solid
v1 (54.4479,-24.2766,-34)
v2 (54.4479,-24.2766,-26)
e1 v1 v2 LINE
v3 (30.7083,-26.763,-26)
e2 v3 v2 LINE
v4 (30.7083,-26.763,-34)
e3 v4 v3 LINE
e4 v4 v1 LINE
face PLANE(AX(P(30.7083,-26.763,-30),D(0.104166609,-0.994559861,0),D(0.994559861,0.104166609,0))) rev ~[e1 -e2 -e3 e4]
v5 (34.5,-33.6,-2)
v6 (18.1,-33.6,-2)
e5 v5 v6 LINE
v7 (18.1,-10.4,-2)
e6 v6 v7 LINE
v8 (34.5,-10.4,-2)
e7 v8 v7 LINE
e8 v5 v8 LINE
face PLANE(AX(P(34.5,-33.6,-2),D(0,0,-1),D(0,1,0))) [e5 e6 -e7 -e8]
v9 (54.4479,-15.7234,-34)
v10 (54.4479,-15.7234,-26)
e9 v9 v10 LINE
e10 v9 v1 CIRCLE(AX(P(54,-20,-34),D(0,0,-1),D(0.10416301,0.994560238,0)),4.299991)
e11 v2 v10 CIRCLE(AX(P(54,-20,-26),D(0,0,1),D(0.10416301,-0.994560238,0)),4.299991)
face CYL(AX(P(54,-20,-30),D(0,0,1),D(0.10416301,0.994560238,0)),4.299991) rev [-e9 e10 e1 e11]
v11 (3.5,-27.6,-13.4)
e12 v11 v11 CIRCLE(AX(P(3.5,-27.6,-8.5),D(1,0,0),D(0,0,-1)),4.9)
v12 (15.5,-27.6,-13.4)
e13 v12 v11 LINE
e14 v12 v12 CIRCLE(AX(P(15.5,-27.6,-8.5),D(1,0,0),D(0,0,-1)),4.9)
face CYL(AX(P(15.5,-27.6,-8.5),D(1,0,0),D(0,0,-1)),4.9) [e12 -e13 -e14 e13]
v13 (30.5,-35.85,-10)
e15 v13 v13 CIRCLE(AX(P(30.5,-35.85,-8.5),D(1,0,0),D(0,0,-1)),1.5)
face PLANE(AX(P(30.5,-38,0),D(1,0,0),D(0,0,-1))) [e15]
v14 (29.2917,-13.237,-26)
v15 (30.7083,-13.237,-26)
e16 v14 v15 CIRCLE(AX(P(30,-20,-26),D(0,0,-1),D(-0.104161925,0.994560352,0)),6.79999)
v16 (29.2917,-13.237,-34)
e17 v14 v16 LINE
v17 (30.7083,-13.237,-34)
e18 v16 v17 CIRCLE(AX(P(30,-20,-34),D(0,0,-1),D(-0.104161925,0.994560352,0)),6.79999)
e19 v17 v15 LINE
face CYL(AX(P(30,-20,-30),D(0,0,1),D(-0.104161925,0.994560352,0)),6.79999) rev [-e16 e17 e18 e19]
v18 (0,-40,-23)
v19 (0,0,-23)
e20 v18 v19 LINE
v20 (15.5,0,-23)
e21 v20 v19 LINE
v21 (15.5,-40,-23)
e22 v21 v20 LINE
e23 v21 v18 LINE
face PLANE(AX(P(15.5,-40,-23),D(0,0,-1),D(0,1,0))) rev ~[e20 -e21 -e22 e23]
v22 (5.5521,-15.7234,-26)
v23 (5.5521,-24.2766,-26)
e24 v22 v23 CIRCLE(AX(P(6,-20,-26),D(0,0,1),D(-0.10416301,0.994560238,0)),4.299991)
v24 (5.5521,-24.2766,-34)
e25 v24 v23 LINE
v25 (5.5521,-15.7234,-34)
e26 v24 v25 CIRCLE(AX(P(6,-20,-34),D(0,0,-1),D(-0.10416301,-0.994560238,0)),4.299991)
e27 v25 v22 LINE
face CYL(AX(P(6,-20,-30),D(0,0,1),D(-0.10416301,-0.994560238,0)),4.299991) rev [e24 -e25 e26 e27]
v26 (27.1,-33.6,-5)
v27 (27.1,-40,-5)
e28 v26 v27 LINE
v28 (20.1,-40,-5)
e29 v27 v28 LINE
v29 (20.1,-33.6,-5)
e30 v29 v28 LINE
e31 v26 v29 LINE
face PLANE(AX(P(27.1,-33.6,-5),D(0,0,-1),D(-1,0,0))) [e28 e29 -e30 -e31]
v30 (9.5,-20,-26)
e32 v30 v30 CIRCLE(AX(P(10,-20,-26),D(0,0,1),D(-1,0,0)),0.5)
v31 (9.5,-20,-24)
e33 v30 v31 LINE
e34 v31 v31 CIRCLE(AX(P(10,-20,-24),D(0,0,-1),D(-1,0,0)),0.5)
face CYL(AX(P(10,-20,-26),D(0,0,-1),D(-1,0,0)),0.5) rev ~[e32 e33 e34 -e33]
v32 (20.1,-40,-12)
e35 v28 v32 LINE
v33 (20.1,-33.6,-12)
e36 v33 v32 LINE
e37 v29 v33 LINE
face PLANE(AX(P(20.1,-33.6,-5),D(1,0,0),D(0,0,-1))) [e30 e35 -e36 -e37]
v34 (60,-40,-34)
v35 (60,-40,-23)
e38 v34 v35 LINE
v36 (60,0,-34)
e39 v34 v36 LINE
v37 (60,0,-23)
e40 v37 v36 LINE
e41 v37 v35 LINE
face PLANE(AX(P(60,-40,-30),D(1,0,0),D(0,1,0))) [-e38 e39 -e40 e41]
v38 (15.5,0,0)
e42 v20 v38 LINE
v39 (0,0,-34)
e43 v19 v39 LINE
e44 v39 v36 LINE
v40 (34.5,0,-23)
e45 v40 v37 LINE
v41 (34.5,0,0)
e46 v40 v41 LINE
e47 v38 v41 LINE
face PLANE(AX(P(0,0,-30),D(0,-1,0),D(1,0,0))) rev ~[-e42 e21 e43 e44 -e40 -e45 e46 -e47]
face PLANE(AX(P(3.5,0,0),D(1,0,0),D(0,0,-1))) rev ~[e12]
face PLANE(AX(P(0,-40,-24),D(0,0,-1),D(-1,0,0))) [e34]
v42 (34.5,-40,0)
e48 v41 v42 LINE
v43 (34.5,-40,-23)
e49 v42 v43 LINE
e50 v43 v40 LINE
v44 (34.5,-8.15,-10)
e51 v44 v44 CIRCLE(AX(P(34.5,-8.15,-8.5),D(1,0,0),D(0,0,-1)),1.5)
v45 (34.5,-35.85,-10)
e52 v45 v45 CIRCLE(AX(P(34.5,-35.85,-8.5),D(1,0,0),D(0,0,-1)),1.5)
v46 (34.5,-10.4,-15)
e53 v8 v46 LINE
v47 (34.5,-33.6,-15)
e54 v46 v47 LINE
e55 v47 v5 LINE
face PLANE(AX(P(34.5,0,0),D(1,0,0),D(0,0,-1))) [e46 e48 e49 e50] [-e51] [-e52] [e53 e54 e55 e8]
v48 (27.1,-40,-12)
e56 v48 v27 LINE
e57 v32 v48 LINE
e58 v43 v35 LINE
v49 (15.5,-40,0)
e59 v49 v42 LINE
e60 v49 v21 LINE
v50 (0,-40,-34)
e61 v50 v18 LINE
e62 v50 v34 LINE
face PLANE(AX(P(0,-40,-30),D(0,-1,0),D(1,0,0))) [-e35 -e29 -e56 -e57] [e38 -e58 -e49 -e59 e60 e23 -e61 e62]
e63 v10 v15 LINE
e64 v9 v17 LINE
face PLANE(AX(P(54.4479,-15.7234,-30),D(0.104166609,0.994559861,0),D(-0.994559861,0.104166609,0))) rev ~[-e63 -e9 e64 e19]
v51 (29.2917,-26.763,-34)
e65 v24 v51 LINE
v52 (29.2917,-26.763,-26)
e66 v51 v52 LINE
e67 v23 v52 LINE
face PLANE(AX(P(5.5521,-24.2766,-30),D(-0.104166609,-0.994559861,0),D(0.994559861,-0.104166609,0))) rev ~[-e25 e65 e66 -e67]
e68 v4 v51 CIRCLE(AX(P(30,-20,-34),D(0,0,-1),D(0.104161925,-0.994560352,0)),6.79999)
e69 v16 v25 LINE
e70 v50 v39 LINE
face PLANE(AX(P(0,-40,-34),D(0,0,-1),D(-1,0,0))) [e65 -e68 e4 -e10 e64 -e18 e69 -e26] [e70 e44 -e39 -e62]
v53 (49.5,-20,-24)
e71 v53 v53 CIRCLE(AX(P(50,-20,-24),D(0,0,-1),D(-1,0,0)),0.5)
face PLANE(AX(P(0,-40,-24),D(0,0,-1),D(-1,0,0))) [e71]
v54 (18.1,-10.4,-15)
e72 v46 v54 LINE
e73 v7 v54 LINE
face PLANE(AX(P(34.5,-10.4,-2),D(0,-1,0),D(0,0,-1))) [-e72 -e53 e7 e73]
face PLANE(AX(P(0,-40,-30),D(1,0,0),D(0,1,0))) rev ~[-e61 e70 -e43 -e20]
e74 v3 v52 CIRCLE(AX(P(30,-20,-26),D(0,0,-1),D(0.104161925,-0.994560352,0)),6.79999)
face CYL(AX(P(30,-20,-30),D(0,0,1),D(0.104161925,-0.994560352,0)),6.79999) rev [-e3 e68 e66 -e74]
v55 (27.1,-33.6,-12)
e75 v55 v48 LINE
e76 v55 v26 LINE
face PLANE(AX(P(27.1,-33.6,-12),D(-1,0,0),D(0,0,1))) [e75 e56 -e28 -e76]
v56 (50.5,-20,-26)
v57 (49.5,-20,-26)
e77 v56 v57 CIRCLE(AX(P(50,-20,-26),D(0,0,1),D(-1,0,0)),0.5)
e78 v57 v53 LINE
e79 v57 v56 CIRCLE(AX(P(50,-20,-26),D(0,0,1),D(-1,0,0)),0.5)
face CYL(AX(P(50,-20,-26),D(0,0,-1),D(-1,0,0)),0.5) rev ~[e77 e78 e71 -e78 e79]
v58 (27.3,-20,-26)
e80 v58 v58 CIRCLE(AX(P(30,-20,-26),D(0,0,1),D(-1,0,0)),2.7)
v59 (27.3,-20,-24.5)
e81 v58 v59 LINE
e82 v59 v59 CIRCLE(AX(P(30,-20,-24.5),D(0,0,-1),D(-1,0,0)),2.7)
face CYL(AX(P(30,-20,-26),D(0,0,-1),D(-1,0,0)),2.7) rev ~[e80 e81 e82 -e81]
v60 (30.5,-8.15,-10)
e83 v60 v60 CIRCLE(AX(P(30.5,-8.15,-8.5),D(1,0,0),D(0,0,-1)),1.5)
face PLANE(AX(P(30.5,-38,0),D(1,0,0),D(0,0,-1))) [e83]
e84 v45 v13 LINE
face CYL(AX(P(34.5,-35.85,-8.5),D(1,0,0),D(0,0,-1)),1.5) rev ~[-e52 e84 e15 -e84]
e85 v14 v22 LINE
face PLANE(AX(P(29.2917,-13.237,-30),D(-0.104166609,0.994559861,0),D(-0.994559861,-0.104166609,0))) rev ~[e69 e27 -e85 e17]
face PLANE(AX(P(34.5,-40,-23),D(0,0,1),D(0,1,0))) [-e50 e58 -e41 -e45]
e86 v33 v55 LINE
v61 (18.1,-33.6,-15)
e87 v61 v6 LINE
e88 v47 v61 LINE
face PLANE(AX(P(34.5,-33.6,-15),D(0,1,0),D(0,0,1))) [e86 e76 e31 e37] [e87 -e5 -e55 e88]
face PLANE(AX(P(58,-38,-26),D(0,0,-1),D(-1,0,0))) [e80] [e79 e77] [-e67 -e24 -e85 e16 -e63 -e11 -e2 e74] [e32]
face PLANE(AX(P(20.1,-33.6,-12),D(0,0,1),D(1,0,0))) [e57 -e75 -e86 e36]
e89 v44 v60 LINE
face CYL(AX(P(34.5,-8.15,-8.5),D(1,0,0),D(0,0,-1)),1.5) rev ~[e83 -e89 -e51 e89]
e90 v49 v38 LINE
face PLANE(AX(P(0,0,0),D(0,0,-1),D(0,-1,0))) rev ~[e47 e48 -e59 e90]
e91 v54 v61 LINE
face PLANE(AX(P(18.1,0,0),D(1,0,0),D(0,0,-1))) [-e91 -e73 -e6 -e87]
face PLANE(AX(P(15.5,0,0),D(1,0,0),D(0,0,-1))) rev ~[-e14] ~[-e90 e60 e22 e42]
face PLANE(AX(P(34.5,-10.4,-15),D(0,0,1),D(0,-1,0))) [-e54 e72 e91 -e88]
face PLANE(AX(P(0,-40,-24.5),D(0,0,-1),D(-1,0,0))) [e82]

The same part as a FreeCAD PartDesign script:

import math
import FreeCAD as App
import Part
import Sketcher
from FreeCAD import Vector

doc = App.newDocument("Part")
params = doc.addObject("Spreadsheet::Sheet", "Params")
for row, (alias, value) in enumerate([
    ("sketch1_width", "40 mm"),
    ("sketch1_height", "30 mm"),
    ("pad1_length", "60 mm"),
    ("sketch2_height", "13 mm"),
    ("sketch2_width", "23.2 mm"),
    ("pocket1_length", "16.4 mm"),
    ("sketch3_radius", "4 mm"),
    ("sketch3_radius2", "6.5 mm"),
    ("pocket2_length", "4 mm"),
    ("sketch4_width", "40 mm"),
    ("sketch4_height", "23 mm"),
    ("pocket3_length", "30 mm"),
    ("sketch5_width", "40 mm"),
    ("sketch5_height", "23 mm"),
    ("pocket4_length", "30 mm"),
    ("sketch6_height", "13 mm"),
    ("sketch6_width", "23.2 mm"),
    ("pocket5_length", "16.4 mm"),
    ("sketch7_diameter", "9.8 mm"),
    ("pad2_length", "12 mm"),
    ("sketch8_width", "7 mm"),
    ("pocket6_length", "10 mm"),
    ("sketch9_diameter", "5.4 mm"),
    ("pocket7_length", "1.5 mm"),
    ("sketch10_radius", "4 mm"),
    ("sketch10_radius2", "4.3 mm"),
    ("sketch10_radius3", "6.8 mm"),
    ("pocket8_length", "4 mm"),
    ("sketch11_diameter", "1 mm"),
    ("pocket9_length", "2 mm"),
    ("sketch12_diameter", "3 mm"),
    ("pocket10_length", "4 mm"),
    ("sketch13_radius", "6.8 mm"),
    ("sketch13_radius2", "4.3 mm"),
    ("sketch13_width", "60 mm"),
    ("sketch13_height", "40 mm"),
    ("pad3_length", "4 mm"),
], start=1):
    params.set(f"A{row}", alias)
    params.set(f"B{row}", "=" + value)
    params.setAlias(f"B{row}", alias)

body = doc.addObject("PartDesign::Body", "Body")

# Sketch on YZ plane
sketch1 = body.newObject("Sketcher::SketchObject", "Sketch")
sketch1.AttachmentSupport = (doc.getObject("YZ_Plane"), [""])
sketch1.MapMode = "FlatFace"
sketch1.addGeometry(Part.LineSegment(Vector(0, -30, 0), Vector(0, 0, 0)), False)
sketch1.addGeometry(Part.LineSegment(Vector(0, 0, 0), Vector(-40, 0, 0)), False)
sketch1.addGeometry(Part.LineSegment(Vector(-40, 0, 0), Vector(-40, -30, 0)), False)
sketch1.addGeometry(Part.LineSegment(Vector(-40, -30, 0), Vector(0, -30, 0)), False)
sketch1.addConstraint(Sketcher.Constraint("Coincident", 0, 2, 1, 1))
sketch1.addConstraint(Sketcher.Constraint("Coincident", 1, 2, 2, 1))
sketch1.addConstraint(Sketcher.Constraint("Coincident", 2, 2, 3, 1))
sketch1.addConstraint(Sketcher.Constraint("Coincident", 3, 2, 0, 1))
sketch1.addConstraint(Sketcher.Constraint("Vertical", 0))
sketch1.addConstraint(Sketcher.Constraint("Horizontal", 1))
sketch1.addConstraint(Sketcher.Constraint("Vertical", 2))
sketch1.addConstraint(Sketcher.Constraint("Horizontal", 3))
sketch1.addConstraint(Sketcher.Constraint("Coincident", 0, 2, -1, 1))
sketch1.addConstraint(Sketcher.Constraint("DistanceX", 1, 2, 1, 1, 40.0))
sketch1.addConstraint(Sketcher.Constraint("DistanceY", 0, 1, 0, 2, 30.0))
sketch1.setExpression("Constraints[9]", "Params.sketch1_width")
sketch1.setExpression("Constraints[10]", "Params.sketch1_height")
pad1 = body.newObject("PartDesign::Pad", "Pad")
pad1.Profile = sketch1
pad1.setExpression("Length", "Params.pad1_length")

# Sketch on YZ plane
sketch2 = body.newObject("Sketcher::SketchObject", "Sketch001")
sketch2.AttachmentSupport = (doc.getObject("YZ_Plane"), [""])
sketch2.MapMode = "FlatFace"
sketch2.AttachmentOffset = App.Placement(Vector(0, 0, 60), App.Rotation())
sketch2.addGeometry(Part.LineSegment(Vector(-10, -15, 0), Vector(-10, -2, 0)), False)
sketch2.addGeometry(Part.LineSegment(Vector(-10, -2, 0), Vector(-34, -2, 0)), False)
sketch2.addGeometry(Part.LineSegment(Vector(-34, -2, 0), Vector(-34, -15, 0)), False)
sketch2.addGeometry(Part.LineSegment(Vector(-34, -15, 0), Vector(-10, -15, 0)), False)
sketch2.addConstraint(Sketcher.Constraint("Coincident", 0, 2, 1, 1))
sketch2.addConstraint(Sketcher.Constraint("Coincident", 1, 2, 2, 1))
sketch2.addConstraint(Sketcher.Constraint("Coincident", 2, 2, 3, 1))
sketch2.addConstraint(Sketcher.Constraint("Coincident", 3, 2, 0, 1))
sketch2.addConstraint(Sketcher.Constraint("Vertical", 0))
sketch2.addConstraint(Sketcher.Constraint("Horizontal", 1))
sketch2.addConstraint(Sketcher.Constraint("Vertical", 2))
sketch2.addConstraint(Sketcher.Constraint("Horizontal", 3))
sketch2.addConstraint(Sketcher.Constraint("DistanceY", 0, 1, 0, 2, 13.0))
sketch2.addConstraint(Sketcher.Constraint("DistanceX", 1, 2, 1, 1, 23.2))
sketch2.addConstraint(Sketcher.Constraint("DistanceY", 0, 2, -1, 1, 2.0))
sketch2.addConstraint(Sketcher.Constraint("DistanceX", 0, 2, -1, 1, 10.4))
sketch2.setExpression("Constraints[8]", "Params.sketch2_height")
sketch2.setExpression("Constraints[9]", "Params.sketch2_width")
pocket1 = body.newObject("PartDesign::Pocket", "Pocket")
pocket1.Profile = sketch2
pocket1.setExpression("Length", "Params.pocket1_length")

# Sketch on XY plane
sketch3 = body.newObject("Sketcher::SketchObject", "Sketch002")
sketch3.AttachmentSupport = (doc.getObject("XY_Plane"), [""])
sketch3.MapMode = "FlatFace"
sketch3.AttachmentOffset = App.Placement(Vector(0, 0, -30), App.Rotation())
sketch3.addGeometry(Part.LineSegment(Vector(5.6, -16, 0), Vector(29.3, -13.5, 0)), False)
sketch3.addGeometry(Part.ArcOfCircle(Part.Circle(Vector(30, -20, 0), Vector(0, 0, 1), 6.5), math.radians(84.02), math.radians(95.98)), False)
sketch3.addGeometry(Part.LineSegment(Vector(30.7, -13.5, 0), Vector(54.4, -16, 0)), False)
sketch3.addGeometry(Part.ArcOfCircle(Part.Circle(Vector(54, -20, 0), Vector(0, 0, 1), 4), math.radians(-84), math.radians(84)), False)
sketch3.addGeometry(Part.LineSegment(Vector(54.4, -24, 0), Vector(30.7, -26.5, 0)), False)
sketch3.addGeometry(Part.ArcOfCircle(Part.Circle(Vector(30, -20, 0), Vector(0, 0, 1), 6.5), math.radians(-95.98), math.radians(-84.02)), False)
sketch3.addGeometry(Part.LineSegment(Vector(29.3, -26.5, 0), Vector(5.6, -24, 0)), False)
sketch3.addGeometry(Part.ArcOfCircle(Part.Circle(Vector(6, -20, 0), Vector(0, 0, 1), 4), math.radians(96), math.radians(264)), False)
sketch3.addConstraint(Sketcher.Constraint("Tangent", 0, 2, 1, 2))
sketch3.addConstraint(Sketcher.Constraint("Tangent", 1, 1, 2, 1))
sketch3.addConstraint(Sketcher.Constraint("Tangent", 2, 2, 3, 2))
sketch3.addConstraint(Sketcher.Constraint("Tangent", 3, 1, 4, 1))
sketch3.addConstraint(Sketcher.Constraint("Tangent", 4, 2, 5, 2))
sketch3.addConstraint(Sketcher.Constraint("Tangent", 5, 1, 6, 1))
sketch3.addConstraint(Sketcher.Constraint("Tangent", 6, 2, 7, 2))
sketch3.addConstraint(Sketcher.Constraint("Tangent", 7, 1, 0, 1))
sketch3.addConstraint(Sketcher.Constraint("Coincident", 5, 3, 1, 3))
sketch3.addConstraint(Sketcher.Constraint("Equal", 1, 5))
sketch3.addConstraint(Sketcher.Constraint("Equal", 3, 7))
sketch3.addConstraint(Sketcher.Constraint("Parallel", 0, 4))
sketch3.addConstraint(Sketcher.Constraint("Parallel", 2, 6))
sketch3.addConstraint(Sketcher.Constraint("Horizontal", 1, 3, 3, 3))
sketch3.addConstraint(Sketcher.Constraint("Radius", 3, 4.0))
sketch3.addConstraint(Sketcher.Constraint("Radius", 1, 6.5))
sketch3.addConstraint(Sketcher.Constraint("DistanceX", -1, 1, 1, 3, 30.0))
sketch3.addConstraint(Sketcher.Constraint("DistanceY", 1, 3, -1, 1, 20.0))
sketch3.addConstraint(Sketcher.Constraint("DistanceX", 1, 3, 3, 3, 24.0))
sketch3.setExpression("Constraints[14]", "Params.sketch3_radius")
sketch3.setExpression("Constraints[15]", "Params.sketch3_radius2")
pocket2 = body.newObject("PartDesign::Pocket", "Pocket001")
pocket2.Profile = sketch3
pocket2.setExpression("Length", "Params.pocket2_length")
pocket2.Reversed = True

# Sketch on YZ plane
sketch4 = body.newObject("Sketcher::SketchObject", "Sketch003")
sketch4.AttachmentSupport = (doc.getObject("YZ_Plane"), [""])
sketch4.MapMode = "FlatFace"
sketch4.AttachmentOffset = App.Placement(Vector(0, 0, 34.5), App.Rotation())
sketch4.addGeometry(Part.LineSegment(Vector(0, -23, 0), Vector(0, 0, 0)), False)
sketch4.addGeometry(Part.LineSegment(Vector(0, 0, 0), Vector(-40, 0, 0)), False)
sketch4.addGeometry(Part.LineSegment(Vector(-40, 0, 0), Vector(-40, -23, 0)), False)
sketch4.addGeometry(Part.LineSegment(Vector(-40, -23, 0), Vector(0, -23, 0)), False)
sketch4.addConstraint(Sketcher.Constraint("Coincident", 0, 2, 1, 1))
sketch4.addConstraint(Sketcher.Constraint("Coincident", 1, 2, 2, 1))
sketch4.addConstraint(Sketcher.Constraint("Coincident", 2, 2, 3, 1))
sketch4.addConstraint(Sketcher.Constraint("Coincident", 3, 2, 0, 1))
sketch4.addConstraint(Sketcher.Constraint("Vertical", 0))
sketch4.addConstraint(Sketcher.Constraint("Horizontal", 1))
sketch4.addConstraint(Sketcher.Constraint("Vertical", 2))
sketch4.addConstraint(Sketcher.Constraint("Horizontal", 3))
sketch4.addConstraint(Sketcher.Constraint("Coincident", 0, 2, -1, 1))
sketch4.addConstraint(Sketcher.Constraint("DistanceX", 1, 2, 1, 1, 40.0))
sketch4.addConstraint(Sketcher.Constraint("DistanceY", 0, 1, 0, 2, 23.0))
sketch4.setExpression("Constraints[9]", "Params.sketch4_width")
sketch4.setExpression("Constraints[10]", "Params.sketch4_height")
pocket3 = body.newObject("PartDesign::Pocket", "Pocket002")
pocket3.Profile = sketch4
pocket3.setExpression("Length", "Params.pocket3_length")
pocket3.Reversed = True

# Sketch on YZ plane
sketch5 = body.newObject("Sketcher::SketchObject", "Sketch004")
sketch5.AttachmentSupport = (doc.getObject("YZ_Plane"), [""])
sketch5.MapMode = "FlatFace"
sketch5.AttachmentOffset = App.Placement(Vector(0, 0, 15.5), App.Rotation())
sketch5.addGeometry(Part.LineSegment(Vector(0, -23, 0), Vector(0, 0, 0)), False)
sketch5.addGeometry(Part.LineSegment(Vector(0, 0, 0), Vector(-40, 0, 0)), False)
sketch5.addGeometry(Part.LineSegment(Vector(-40, 0, 0), Vector(-40, -23, 0)), False)
sketch5.addGeometry(Part.LineSegment(Vector(-40, -23, 0), Vector(0, -23, 0)), False)
sketch5.addConstraint(Sketcher.Constraint("Coincident", 0, 2, 1, 1))
sketch5.addConstraint(Sketcher.Constraint("Coincident", 1, 2, 2, 1))
sketch5.addConstraint(Sketcher.Constraint("Coincident", 2, 2, 3, 1))
sketch5.addConstraint(Sketcher.Constraint("Coincident", 3, 2, 0, 1))
sketch5.addConstraint(Sketcher.Constraint("Vertical", 0))
sketch5.addConstraint(Sketcher.Constraint("Horizontal", 1))
sketch5.addConstraint(Sketcher.Constraint("Vertical", 2))
sketch5.addConstraint(Sketcher.Constraint("Horizontal", 3))
sketch5.addConstraint(Sketcher.Constraint("Coincident", 0, 2, -1, 1))
sketch5.addConstraint(Sketcher.Constraint("DistanceX", 1, 2, 1, 1, 40.0))
sketch5.addConstraint(Sketcher.Constraint("DistanceY", 0, 1, 0, 2, 23.0))
sketch5.setExpression("Constraints[9]", "Params.sketch5_width")
sketch5.setExpression("Constraints[10]", "Params.sketch5_height")
pocket4 = body.newObject("PartDesign::Pocket", "Pocket003")
pocket4.Profile = sketch5
pocket4.setExpression("Length", "Params.pocket4_length")

# Sketch on YZ plane
sketch6 = body.newObject("Sketcher::SketchObject", "Sketch005")
sketch6.AttachmentSupport = (doc.getObject("YZ_Plane"), [""])
sketch6.MapMode = "FlatFace"
sketch6.AttachmentOffset = App.Placement(Vector(0, 0, 34.5), App.Rotation())
sketch6.addGeometry(Part.LineSegment(Vector(-10, -15, 0), Vector(-10, -2, 0)), False)
sketch6.addGeometry(Part.LineSegment(Vector(-10, -2, 0), Vector(-34, -2, 0)), False)
sketch6.addGeometry(Part.LineSegment(Vector(-34, -2, 0), Vector(-34, -15, 0)), False)
sketch6.addGeometry(Part.LineSegment(Vector(-34, -15, 0), Vector(-10, -15, 0)), False)
sketch6.addConstraint(Sketcher.Constraint("Coincident", 0, 2, 1, 1))
sketch6.addConstraint(Sketcher.Constraint("Coincident", 1, 2, 2, 1))
sketch6.addConstraint(Sketcher.Constraint("Coincident", 2, 2, 3, 1))
sketch6.addConstraint(Sketcher.Constraint("Coincident", 3, 2, 0, 1))
sketch6.addConstraint(Sketcher.Constraint("Vertical", 0))
sketch6.addConstraint(Sketcher.Constraint("Horizontal", 1))
sketch6.addConstraint(Sketcher.Constraint("Vertical", 2))
sketch6.addConstraint(Sketcher.Constraint("Horizontal", 3))
sketch6.addConstraint(Sketcher.Constraint("DistanceY", 0, 1, 0, 2, 13.0))
sketch6.addConstraint(Sketcher.Constraint("DistanceX", 1, 2, 1, 1, 23.2))
sketch6.addConstraint(Sketcher.Constraint("DistanceY", 0, 2, -1, 1, 2.0))
sketch6.addConstraint(Sketcher.Constraint("DistanceX", 0, 2, -1, 1, 10.4))
sketch6.setExpression("Constraints[8]", "Params.sketch6_height")
sketch6.setExpression("Constraints[9]", "Params.sketch6_width")
pocket5 = body.newObject("PartDesign::Pocket", "Pocket004")
pocket5.Profile = sketch6
pocket5.setExpression("Length", "Params.pocket5_length")

# Sketch on YZ plane
sketch7 = body.newObject("Sketcher::SketchObject", "Sketch006")
sketch7.AttachmentSupport = (doc.getObject("YZ_Plane"), [""])
sketch7.MapMode = "FlatFace"
sketch7.AttachmentOffset = App.Placement(Vector(0, 0, 15.5), App.Rotation())
sketch7.addGeometry(Part.Circle(Vector(-27.6, -8.5, 0), Vector(0, 0, 1), 4.9), False)
sketch7.addConstraint(Sketcher.Constraint("Diameter", 0, 9.8))
sketch7.addConstraint(Sketcher.Constraint("DistanceX", 0, 3, -1, 1, 27.6))
sketch7.addConstraint(Sketcher.Constraint("DistanceY", 0, 3, -1, 1, 8.5))
sketch7.setExpression("Constraints[0]", "Params.sketch7_diameter")
pad2 = body.newObject("PartDesign::Pad", "Pad001")
pad2.Profile = sketch7
pad2.setExpression("Length", "Params.pad2_length")
pad2.Reversed = True

# Sketch on XZ plane
sketch8 = body.newObject("Sketcher::SketchObject", "Sketch007")
sketch8.AttachmentSupport = (doc.getObject("XZ_Plane"), [""])
sketch8.MapMode = "FlatFace"
sketch8.AttachmentOffset = App.Placement(Vector(0, 0, 33.6), App.Rotation())
sketch8.addGeometry(Part.LineSegment(Vector(27, -12, 0), Vector(20, -12, 0)), False)
sketch8.addGeometry(Part.LineSegment(Vector(20, -12, 0), Vector(20, -5, 0)), False)
sketch8.addGeometry(Part.LineSegment(Vector(20, -5, 0), Vector(27, -5, 0)), False)
sketch8.addGeometry(Part.LineSegment(Vector(27, -5, 0), Vector(27, -12, 0)), False)
sketch8.addConstraint(Sketcher.Constraint("Coincident", 0, 2, 1, 1))
sketch8.addConstraint(Sketcher.Constraint("Coincident", 1, 2, 2, 1))
sketch8.addConstraint(Sketcher.Constraint("Coincident", 2, 2, 3, 1))
sketch8.addConstraint(Sketcher.Constraint("Coincident", 3, 2, 0, 1))
sketch8.addConstraint(Sketcher.Constraint("Horizontal", 0))
sketch8.addConstraint(Sketcher.Constraint("Vertical", 1))
sketch8.addConstraint(Sketcher.Constraint("Horizontal", 2))
sketch8.addConstraint(Sketcher.Constraint("Vertical", 3))
sketch8.addConstraint(Sketcher.Constraint("Equal", 2, 1))
sketch8.addConstraint(Sketcher.Constraint("DistanceX", 0, 2, 0, 1, 7.0))
sketch8.addConstraint(Sketcher.Constraint("DistanceY", 0, 2, -1, 1, 12.0))
sketch8.addConstraint(Sketcher.Constraint("DistanceX", -1, 1, 0, 2, 20.1))
sketch8.setExpression("Constraints[9]", "Params.sketch8_width")
pocket6 = body.newObject("PartDesign::Pocket", "Pocket005")
pocket6.Profile = sketch8
pocket6.setExpression("Length", "Params.pocket6_length")
pocket6.Reversed = True

# Sketch on XY plane
sketch9 = body.newObject("Sketcher::SketchObject", "Sketch008")
sketch9.AttachmentSupport = (doc.getObject("XY_Plane"), [""])
sketch9.MapMode = "FlatFace"
sketch9.AttachmentOffset = App.Placement(Vector(0, 0, -26), App.Rotation())
sketch9.addGeometry(Part.Circle(Vector(30, -20, 0), Vector(0, 0, 1), 2.7), False)
sketch9.addConstraint(Sketcher.Constraint("Diameter", 0, 5.4))
sketch9.addConstraint(Sketcher.Constraint("DistanceX", -1, 1, 0, 3, 30.0))
sketch9.addConstraint(Sketcher.Constraint("DistanceY", 0, 3, -1, 1, 20.0))
sketch9.setExpression("Constraints[0]", "Params.sketch9_diameter")
pocket7 = body.newObject("PartDesign::Pocket", "Pocket006")
pocket7.Profile = sketch9
pocket7.setExpression("Length", "Params.pocket7_length")
pocket7.Reversed = True

# Sketch on XY plane
sketch10 = body.newObject("Sketcher::SketchObject", "Sketch009")
sketch10.AttachmentSupport = (doc.getObject("XY_Plane"), [""])
sketch10.MapMode = "FlatFace"
sketch10.AttachmentOffset = App.Placement(Vector(0, 0, -30), App.Rotation())
sketch10.addGeometry(Part.LineSegment(Vector(30.7, -13.2, 0), Vector(54.4, -15.7, 0)), False)
sketch10.addGeometry(Part.ArcOfCircle(Part.Circle(Vector(54, -20, 0), Vector(0, 0, 1), 4.3), math.radians(-84), math.radians(84)), False)
sketch10.addGeometry(Part.LineSegment(Vector(54.4, -24.3, 0), Vector(30.7, -26.8, 0)), False)
sketch10.addGeometry(Part.ArcOfCircle(Part.Circle(Vector(30, -20, 0), Vector(0, 0, 1), 6.8), math.radians(-95.98), math.radians(-84.02)), False)
sketch10.addGeometry(Part.LineSegment(Vector(29.3, -26.8, 0), Vector(5.6, -24.3, 0)), False)
sketch10.addGeometry(Part.ArcOfCircle(Part.Circle(Vector(6, -20, 0), Vector(0, 0, 1), 4.3), math.radians(96), math.radians(264)), False)
sketch10.addGeometry(Part.LineSegment(Vector(5.6, -15.7, 0), Vector(29.3, -13.2, 0)), False)
sketch10.addGeometry(Part.ArcOfCircle(Part.Circle(Vector(30, -20, 0), Vector(0, 0, 1), 6.8), math.radians(84.02), math.radians(95.98)), False)
sketch10.addGeometry(Part.LineSegment(Vector(29.3, -13.5, 0), Vector(5.6, -16, 0)), False)
sketch10.addGeometry(Part.ArcOfCircle(Part.Circle(Vector(6, -20, 0), Vector(0, 0, 1), 4), math.radians(96), math.radians(264)), False)
sketch10.addGeometry(Part.LineSegment(Vector(5.6, -24, 0), Vector(29.3, -26.5, 0)), False)
sketch10.addGeometry(Part.ArcOfCircle(Part.Circle(Vector(30, -20, 0), Vector(0, 0, 1), 6.5), math.radians(-95.98), math.radians(-84.02)), False)
sketch10.addGeometry(Part.LineSegment(Vector(30.7, -26.5, 0), Vector(54.4, -24, 0)), False)
sketch10.addGeometry(Part.ArcOfCircle(Part.Circle(Vector(54, -20, 0), Vector(0, 0, 1), 4), math.radians(-84), math.radians(84)), False)
sketch10.addGeometry(Part.LineSegment(Vector(54.4, -16, 0), Vector(30.7, -13.5, 0)), False)
sketch10.addGeometry(Part.ArcOfCircle(Part.Circle(Vector(30, -20, 0), Vector(0, 0, 1), 6.5), math.radians(84.02), math.radians(95.98)), False)
sketch10.addConstraint(Sketcher.Constraint("Tangent", 0, 2, 1, 2))
sketch10.addConstraint(Sketcher.Constraint("Tangent", 1, 1, 2, 1))
sketch10.addConstraint(Sketcher.Constraint("Tangent", 2, 2, 3, 2))
sketch10.addConstraint(Sketcher.Constraint("Tangent", 3, 1, 4, 1))
sketch10.addConstraint(Sketcher.Constraint("Tangent", 4, 2, 5, 2))
sketch10.addConstraint(Sketcher.Constraint("Tangent", 5, 1, 6, 1))
sketch10.addConstraint(Sketcher.Constraint("Tangent", 6, 2, 7, 2))
sketch10.addConstraint(Sketcher.Constraint("Tangent", 7, 1, 0, 1))
sketch10.addConstraint(Sketcher.Constraint("Tangent", 8, 2, 9, 1))
sketch10.addConstraint(Sketcher.Constraint("Tangent", 9, 2, 10, 1))
sketch10.addConstraint(Sketcher.Constraint("Tangent", 10, 2, 11, 1))
sketch10.addConstraint(Sketcher.Constraint("Tangent", 11, 2, 12, 1))
sketch10.addConstraint(Sketcher.Constraint("Tangent", 12, 2, 13, 1))
sketch10.addConstraint(Sketcher.Constraint("Tangent", 13, 2, 14, 1))
sketch10.addConstraint(Sketcher.Constraint("Tangent", 14, 2, 15, 1))
sketch10.addConstraint(Sketcher.Constraint("Tangent", 15, 2, 8, 1))
sketch10.addConstraint(Sketcher.Constraint("Coincident", 7, 3, 3, 3))
sketch10.addConstraint(Sketcher.Constraint("Coincident", 9, 3, 5, 3))
sketch10.addConstraint(Sketcher.Constraint("Coincident", 11, 3, 3, 3))
sketch10.addConstraint(Sketcher.Constraint("Coincident", 13, 3, 1, 3))
sketch10.addConstraint(Sketcher.Constraint("Coincident", 15, 3, 3, 3))
sketch10.addConstraint(Sketcher.Constraint("Equal", 1, 5))
sketch10.addConstraint(Sketcher.Constraint("Equal", 3, 7))
sketch10.addConstraint(Sketcher.Constraint("Equal", 9, 13))
sketch10.addConstraint(Sketcher.Constraint("Equal", 11, 15))
sketch10.addConstraint(Sketcher.Constraint("Parallel", 0, 4))
sketch10.addConstraint(Sketcher.Constraint("Parallel", 2, 6))
sketch10.addConstraint(Sketcher.Constraint("Parallel", 6, 8))
sketch10.addConstraint(Sketcher.Constraint("Horizontal", 1, 3, 3, 3))
sketch10.addConstraint(Sketcher.Constraint("Radius", 9, 4.0))
sketch10.addConstraint(Sketcher.Constraint("Radius", 1, 4.3))
sketch10.addConstraint(Sketcher.Constraint("Radius", 3, 6.8))
sketch10.addConstraint(Sketcher.Constraint("DistanceX", -1, 1, 1, 3, 54.0))
sketch10.addConstraint(Sketcher.Constraint("DistanceY", 1, 3, -1, 1, 20.0))
sketch10.addConstraint(Sketcher.Constraint("DistanceX", -1, 1, 3, 3, 30.0))
sketch10.setExpression("Constraints[29]", "Params.sketch10_radius")
sketch10.setExpression("Constraints[30]", "Params.sketch10_radius2")
sketch10.setExpression("Constraints[31]", "Params.sketch10_radius3")
pocket8 = body.newObject("PartDesign::Pocket", "Pocket007")
pocket8.Profile = sketch10
pocket8.setExpression("Length", "Params.pocket8_length")
pocket8.Reversed = True

# Sketch on XY plane
sketch11 = body.newObject("Sketcher::SketchObject", "Sketch010")
sketch11.AttachmentSupport = (doc.getObject("XY_Plane"), [""])
sketch11.MapMode = "FlatFace"
sketch11.AttachmentOffset = App.Placement(Vector(0, 0, -26), App.Rotation())
sketch11.addGeometry(Part.Circle(Vector(10, -20, 0), Vector(0, 0, 1), 0.5), False)
sketch11.addGeometry(Part.Circle(Vector(50, -20, 0), Vector(0, 0, 1), 0.5), False)
sketch11.addConstraint(Sketcher.Constraint("Equal", 0, 1))
sketch11.addConstraint(Sketcher.Constraint("Horizontal", 0, 3, 1, 3))
sketch11.addConstraint(Sketcher.Constraint("Diameter", 0, 1.0))
sketch11.addConstraint(Sketcher.Constraint("DistanceY", 0, 3, -1, 1, 20.0))
sketch11.addConstraint(Sketcher.Constraint("DistanceX", -1, 1, 0, 3, 10.0))
sketch11.addConstraint(Sketcher.Constraint("DistanceX", -1, 1, 1, 3, 50.0))
sketch11.setExpression("Constraints[2]", "Params.sketch11_diameter")
pocket9 = body.newObject("PartDesign::Pocket", "Pocket008")
pocket9.Profile = sketch11
pocket9.setExpression("Length", "Params.pocket9_length")
pocket9.Reversed = True

# Sketch on YZ plane
sketch12 = body.newObject("Sketcher::SketchObject", "Sketch011")
sketch12.AttachmentSupport = (doc.getObject("YZ_Plane"), [""])
sketch12.MapMode = "FlatFace"
sketch12.AttachmentOffset = App.Placement(Vector(0, 0, 34.5), App.Rotation())
sketch12.addGeometry(Part.Circle(Vector(-35.9, -8.5, 0), Vector(0, 0, 1), 1.5), False)
sketch12.addGeometry(Part.Circle(Vector(-8.2, -8.5, 0), Vector(0, 0, 1), 1.5), False)
sketch12.addConstraint(Sketcher.Constraint("Equal", 0, 1))
sketch12.addConstraint(Sketcher.Constraint("Horizontal", 0, 3, 1, 3))
sketch12.addConstraint(Sketcher.Constraint("Diameter", 0, 3.0))
sketch12.addConstraint(Sketcher.Constraint("DistanceY", 0, 3, -1, 1, 8.5))
sketch12.addConstraint(Sketcher.Constraint("DistanceX", 0, 3, 1, 3, 27.7))
sketch12.addConstraint(Sketcher.Constraint("DistanceX", 0, 3, -1, 1, 35.85))
sketch12.setExpression("Constraints[2]", "Params.sketch12_diameter")
pocket10 = body.newObject("PartDesign::Pocket", "Pocket009")
pocket10.Profile = sketch12
pocket10.setExpression("Length", "Params.pocket10_length")

# Sketch on XY plane
sketch13 = body.newObject("Sketcher::SketchObject", "Sketch012")
sketch13.AttachmentSupport = (doc.getObject("XY_Plane"), [""])
sketch13.MapMode = "FlatFace"
sketch13.AttachmentOffset = App.Placement(Vector(0, 0, -30), App.Rotation())
sketch13.addGeometry(Part.LineSegment(Vector(0, -40, 0), Vector(0, 0, 0)), False)
sketch13.addGeometry(Part.LineSegment(Vector(0, 0, 0), Vector(60, 0, 0)), False)
sketch13.addGeometry(Part.LineSegment(Vector(60, 0, 0), Vector(60, -40, 0)), False)
sketch13.addGeometry(Part.LineSegment(Vector(60, -40, 0), Vector(0, -40, 0)), False)
sketch13.addGeometry(Part.ArcOfCircle(Part.Circle(Vector(30, -20, 0), Vector(0, 0, 1), 6.8), math.radians(84.02), math.radians(95.98)), False)
sketch13.addGeometry(Part.LineSegment(Vector(29.3, -13.2, 0), Vector(5.6, -15.7, 0)), False)
sketch13.addGeometry(Part.ArcOfCircle(Part.Circle(Vector(6, -20, 0), Vector(0, 0, 1), 4.3), math.radians(96), math.radians(264)), False)
sketch13.addGeometry(Part.LineSegment(Vector(5.6, -24.3, 0), Vector(29.3, -26.8, 0)), False)
sketch13.addGeometry(Part.ArcOfCircle(Part.Circle(Vector(30, -20, 0), Vector(0, 0, 1), 6.8), math.radians(-95.98), math.radians(-84.02)), False)
sketch13.addGeometry(Part.LineSegment(Vector(30.7, -26.8, 0), Vector(54.4, -24.3, 0)), False)
sketch13.addGeometry(Part.ArcOfCircle(Part.Circle(Vector(54, -20, 0), Vector(0, 0, 1), 4.3), math.radians(-84), math.radians(84)), False)
sketch13.addGeometry(Part.LineSegment(Vector(54.4, -15.7, 0), Vector(30.7, -13.2, 0)), False)
sketch13.addConstraint(Sketcher.Constraint("Coincident", 0, 2, 1, 1))
sketch13.addConstraint(Sketcher.Constraint("Coincident", 1, 2, 2, 1))
sketch13.addConstraint(Sketcher.Constraint("Coincident", 2, 2, 3, 1))
sketch13.addConstraint(Sketcher.Constraint("Coincident", 3, 2, 0, 1))
sketch13.addConstraint(Sketcher.Constraint("Tangent", 4, 2, 5, 1))
sketch13.addConstraint(Sketcher.Constraint("Tangent", 5, 2, 6, 1))
sketch13.addConstraint(Sketcher.Constraint("Tangent", 6, 2, 7, 1))
sketch13.addConstraint(Sketcher.Constraint("Tangent", 7, 2, 8, 1))
sketch13.addConstraint(Sketcher.Constraint("Tangent", 8, 2, 9, 1))
sketch13.addConstraint(Sketcher.Constraint("Tangent", 9, 2, 10, 1))
sketch13.addConstraint(Sketcher.Constraint("Tangent", 10, 2, 11, 1))
sketch13.addConstraint(Sketcher.Constraint("Tangent", 11, 2, 4, 1))
sketch13.addConstraint(Sketcher.Constraint("Vertical", 0))
sketch13.addConstraint(Sketcher.Constraint("Horizontal", 1))
sketch13.addConstraint(Sketcher.Constraint("Vertical", 2))
sketch13.addConstraint(Sketcher.Constraint("Horizontal", 3))
sketch13.addConstraint(Sketcher.Constraint("Coincident", 0, 2, -1, 1))
sketch13.addConstraint(Sketcher.Constraint("Coincident", 8, 3, 4, 3))
sketch13.addConstraint(Sketcher.Constraint("Equal", 4, 8))
sketch13.addConstraint(Sketcher.Constraint("Equal", 6, 10))
sketch13.addConstraint(Sketcher.Constraint("Parallel", 5, 9))
sketch13.addConstraint(Sketcher.Constraint("Parallel", 7, 11))
sketch13.addConstraint(Sketcher.Constraint("Horizontal", 4, 3, 6, 3))
sketch13.addConstraint(Sketcher.Constraint("Radius", 4, 6.8))
sketch13.addConstraint(Sketcher.Constraint("Radius", 6, 4.3))
sketch13.addConstraint(Sketcher.Constraint("DistanceX", 1, 1, 1, 2, 60.0))
sketch13.addConstraint(Sketcher.Constraint("DistanceY", 0, 1, 0, 2, 40.0))
sketch13.addConstraint(Sketcher.Constraint("DistanceX", -1, 1, 4, 3, 30.0))
sketch13.addConstraint(Sketcher.Constraint("DistanceY", 4, 3, -1, 1, 20.0))
sketch13.addConstraint(Sketcher.Constraint("DistanceX", -1, 1, 6, 3, 6.0))
sketch13.setExpression("Constraints[23]", "Params.sketch13_radius")
sketch13.setExpression("Constraints[24]", "Params.sketch13_radius2")
sketch13.setExpression("Constraints[25]", "Params.sketch13_width")
sketch13.setExpression("Constraints[26]", "Params.sketch13_height")
pad3 = body.newObject("PartDesign::Pad", "Pad002")
pad3.Profile = sketch13
pad3.setExpression("Length", "Params.pad3_length")
pad3.Reversed = True

doc.recompute()
